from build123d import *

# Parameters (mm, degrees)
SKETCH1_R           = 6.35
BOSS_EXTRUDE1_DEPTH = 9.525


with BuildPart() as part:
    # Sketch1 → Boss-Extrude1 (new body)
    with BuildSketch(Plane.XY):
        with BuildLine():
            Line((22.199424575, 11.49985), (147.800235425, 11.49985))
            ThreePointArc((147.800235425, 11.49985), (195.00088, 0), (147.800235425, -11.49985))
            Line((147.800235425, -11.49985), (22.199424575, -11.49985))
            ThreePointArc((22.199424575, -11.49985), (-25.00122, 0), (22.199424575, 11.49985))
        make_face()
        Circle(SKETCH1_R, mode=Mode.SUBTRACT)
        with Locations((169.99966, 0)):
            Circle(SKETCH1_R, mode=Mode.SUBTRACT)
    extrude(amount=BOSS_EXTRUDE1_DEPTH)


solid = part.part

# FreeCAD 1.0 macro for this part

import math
import FreeCAD as App
import Part
import Sketcher

V = App.Vector
Q = App.Units.Quantity

doc = App.newDocument("Part")
body = doc.addObject("PartDesign::Body", "Body")

# Sketch on XY plane
sketch1 = body.newObject("Sketcher::SketchObject", "Sketch")
sketch1.AttachmentSupport = (doc.getObject("XY_Plane"), [""])
sketch1.MapMode = "FlatFace"
sketch1.addGeometry([
    Part.LineSegment(V(148, 11, 0), V(22, 11, 0)),  # 0
    Part.ArcOfCircle(Part.Circle(V(0, 0, 0), V(0, 0, 1), 25), math.radians(27), math.radians(333)),  # 1
    Part.LineSegment(V(22, -11, 0), V(148, -11, 0)),  # 2
    Part.ArcOfCircle(Part.Circle(V(170, 0, 0), V(0, 0, 1), 25), math.radians(-153), math.radians(153)),  # 3
    Part.Circle(V(170, 0, 0), V(0, 0, 1), 6),  # 4
    Part.Circle(V(0, 0, 0), V(0, 0, 1), 6),  # 5
], False)
sketch1.addConstraint([
    Sketcher.Constraint("Coincident", 0, 2, 1, 1),
    Sketcher.Constraint("Coincident", 1, 2, 2, 1),
    Sketcher.Constraint("Coincident", 2, 2, 3, 1),
    Sketcher.Constraint("Coincident", 3, 2, 0, 1),
    Sketcher.Constraint("Horizontal", 0),
    Sketcher.Constraint("Horizontal", 2),
    Sketcher.Constraint("Coincident", 1, 3, -1, 1),
    Sketcher.Constraint("Coincident", 5, 3, -1, 1),
    Sketcher.Constraint("Coincident", 4, 3, 3, 3),
    Sketcher.Constraint("Equal", 1, 3),
    Sketcher.Constraint("Equal", 4, 5),
    Sketcher.Constraint("Symmetric", 2, 2, 3, 2, -1),
    Sketcher.Constraint("Diameter", 4, Q("0.5 in")),
    Sketcher.Constraint("Radius", 1, Q("0.9843 in")),
    Sketcher.Constraint("DistanceX", -1, 1, 3, 3, Q("6.6929 in")),
    Sketcher.Constraint("DistanceY", 1, 2, 0, 2, Q("0.9055 in")),
])
pad1 = body.newObject("PartDesign::Pad", "Pad")
pad1.Profile = sketch1
pad1.Length = Q("0.375 in")

doc.recompute()
